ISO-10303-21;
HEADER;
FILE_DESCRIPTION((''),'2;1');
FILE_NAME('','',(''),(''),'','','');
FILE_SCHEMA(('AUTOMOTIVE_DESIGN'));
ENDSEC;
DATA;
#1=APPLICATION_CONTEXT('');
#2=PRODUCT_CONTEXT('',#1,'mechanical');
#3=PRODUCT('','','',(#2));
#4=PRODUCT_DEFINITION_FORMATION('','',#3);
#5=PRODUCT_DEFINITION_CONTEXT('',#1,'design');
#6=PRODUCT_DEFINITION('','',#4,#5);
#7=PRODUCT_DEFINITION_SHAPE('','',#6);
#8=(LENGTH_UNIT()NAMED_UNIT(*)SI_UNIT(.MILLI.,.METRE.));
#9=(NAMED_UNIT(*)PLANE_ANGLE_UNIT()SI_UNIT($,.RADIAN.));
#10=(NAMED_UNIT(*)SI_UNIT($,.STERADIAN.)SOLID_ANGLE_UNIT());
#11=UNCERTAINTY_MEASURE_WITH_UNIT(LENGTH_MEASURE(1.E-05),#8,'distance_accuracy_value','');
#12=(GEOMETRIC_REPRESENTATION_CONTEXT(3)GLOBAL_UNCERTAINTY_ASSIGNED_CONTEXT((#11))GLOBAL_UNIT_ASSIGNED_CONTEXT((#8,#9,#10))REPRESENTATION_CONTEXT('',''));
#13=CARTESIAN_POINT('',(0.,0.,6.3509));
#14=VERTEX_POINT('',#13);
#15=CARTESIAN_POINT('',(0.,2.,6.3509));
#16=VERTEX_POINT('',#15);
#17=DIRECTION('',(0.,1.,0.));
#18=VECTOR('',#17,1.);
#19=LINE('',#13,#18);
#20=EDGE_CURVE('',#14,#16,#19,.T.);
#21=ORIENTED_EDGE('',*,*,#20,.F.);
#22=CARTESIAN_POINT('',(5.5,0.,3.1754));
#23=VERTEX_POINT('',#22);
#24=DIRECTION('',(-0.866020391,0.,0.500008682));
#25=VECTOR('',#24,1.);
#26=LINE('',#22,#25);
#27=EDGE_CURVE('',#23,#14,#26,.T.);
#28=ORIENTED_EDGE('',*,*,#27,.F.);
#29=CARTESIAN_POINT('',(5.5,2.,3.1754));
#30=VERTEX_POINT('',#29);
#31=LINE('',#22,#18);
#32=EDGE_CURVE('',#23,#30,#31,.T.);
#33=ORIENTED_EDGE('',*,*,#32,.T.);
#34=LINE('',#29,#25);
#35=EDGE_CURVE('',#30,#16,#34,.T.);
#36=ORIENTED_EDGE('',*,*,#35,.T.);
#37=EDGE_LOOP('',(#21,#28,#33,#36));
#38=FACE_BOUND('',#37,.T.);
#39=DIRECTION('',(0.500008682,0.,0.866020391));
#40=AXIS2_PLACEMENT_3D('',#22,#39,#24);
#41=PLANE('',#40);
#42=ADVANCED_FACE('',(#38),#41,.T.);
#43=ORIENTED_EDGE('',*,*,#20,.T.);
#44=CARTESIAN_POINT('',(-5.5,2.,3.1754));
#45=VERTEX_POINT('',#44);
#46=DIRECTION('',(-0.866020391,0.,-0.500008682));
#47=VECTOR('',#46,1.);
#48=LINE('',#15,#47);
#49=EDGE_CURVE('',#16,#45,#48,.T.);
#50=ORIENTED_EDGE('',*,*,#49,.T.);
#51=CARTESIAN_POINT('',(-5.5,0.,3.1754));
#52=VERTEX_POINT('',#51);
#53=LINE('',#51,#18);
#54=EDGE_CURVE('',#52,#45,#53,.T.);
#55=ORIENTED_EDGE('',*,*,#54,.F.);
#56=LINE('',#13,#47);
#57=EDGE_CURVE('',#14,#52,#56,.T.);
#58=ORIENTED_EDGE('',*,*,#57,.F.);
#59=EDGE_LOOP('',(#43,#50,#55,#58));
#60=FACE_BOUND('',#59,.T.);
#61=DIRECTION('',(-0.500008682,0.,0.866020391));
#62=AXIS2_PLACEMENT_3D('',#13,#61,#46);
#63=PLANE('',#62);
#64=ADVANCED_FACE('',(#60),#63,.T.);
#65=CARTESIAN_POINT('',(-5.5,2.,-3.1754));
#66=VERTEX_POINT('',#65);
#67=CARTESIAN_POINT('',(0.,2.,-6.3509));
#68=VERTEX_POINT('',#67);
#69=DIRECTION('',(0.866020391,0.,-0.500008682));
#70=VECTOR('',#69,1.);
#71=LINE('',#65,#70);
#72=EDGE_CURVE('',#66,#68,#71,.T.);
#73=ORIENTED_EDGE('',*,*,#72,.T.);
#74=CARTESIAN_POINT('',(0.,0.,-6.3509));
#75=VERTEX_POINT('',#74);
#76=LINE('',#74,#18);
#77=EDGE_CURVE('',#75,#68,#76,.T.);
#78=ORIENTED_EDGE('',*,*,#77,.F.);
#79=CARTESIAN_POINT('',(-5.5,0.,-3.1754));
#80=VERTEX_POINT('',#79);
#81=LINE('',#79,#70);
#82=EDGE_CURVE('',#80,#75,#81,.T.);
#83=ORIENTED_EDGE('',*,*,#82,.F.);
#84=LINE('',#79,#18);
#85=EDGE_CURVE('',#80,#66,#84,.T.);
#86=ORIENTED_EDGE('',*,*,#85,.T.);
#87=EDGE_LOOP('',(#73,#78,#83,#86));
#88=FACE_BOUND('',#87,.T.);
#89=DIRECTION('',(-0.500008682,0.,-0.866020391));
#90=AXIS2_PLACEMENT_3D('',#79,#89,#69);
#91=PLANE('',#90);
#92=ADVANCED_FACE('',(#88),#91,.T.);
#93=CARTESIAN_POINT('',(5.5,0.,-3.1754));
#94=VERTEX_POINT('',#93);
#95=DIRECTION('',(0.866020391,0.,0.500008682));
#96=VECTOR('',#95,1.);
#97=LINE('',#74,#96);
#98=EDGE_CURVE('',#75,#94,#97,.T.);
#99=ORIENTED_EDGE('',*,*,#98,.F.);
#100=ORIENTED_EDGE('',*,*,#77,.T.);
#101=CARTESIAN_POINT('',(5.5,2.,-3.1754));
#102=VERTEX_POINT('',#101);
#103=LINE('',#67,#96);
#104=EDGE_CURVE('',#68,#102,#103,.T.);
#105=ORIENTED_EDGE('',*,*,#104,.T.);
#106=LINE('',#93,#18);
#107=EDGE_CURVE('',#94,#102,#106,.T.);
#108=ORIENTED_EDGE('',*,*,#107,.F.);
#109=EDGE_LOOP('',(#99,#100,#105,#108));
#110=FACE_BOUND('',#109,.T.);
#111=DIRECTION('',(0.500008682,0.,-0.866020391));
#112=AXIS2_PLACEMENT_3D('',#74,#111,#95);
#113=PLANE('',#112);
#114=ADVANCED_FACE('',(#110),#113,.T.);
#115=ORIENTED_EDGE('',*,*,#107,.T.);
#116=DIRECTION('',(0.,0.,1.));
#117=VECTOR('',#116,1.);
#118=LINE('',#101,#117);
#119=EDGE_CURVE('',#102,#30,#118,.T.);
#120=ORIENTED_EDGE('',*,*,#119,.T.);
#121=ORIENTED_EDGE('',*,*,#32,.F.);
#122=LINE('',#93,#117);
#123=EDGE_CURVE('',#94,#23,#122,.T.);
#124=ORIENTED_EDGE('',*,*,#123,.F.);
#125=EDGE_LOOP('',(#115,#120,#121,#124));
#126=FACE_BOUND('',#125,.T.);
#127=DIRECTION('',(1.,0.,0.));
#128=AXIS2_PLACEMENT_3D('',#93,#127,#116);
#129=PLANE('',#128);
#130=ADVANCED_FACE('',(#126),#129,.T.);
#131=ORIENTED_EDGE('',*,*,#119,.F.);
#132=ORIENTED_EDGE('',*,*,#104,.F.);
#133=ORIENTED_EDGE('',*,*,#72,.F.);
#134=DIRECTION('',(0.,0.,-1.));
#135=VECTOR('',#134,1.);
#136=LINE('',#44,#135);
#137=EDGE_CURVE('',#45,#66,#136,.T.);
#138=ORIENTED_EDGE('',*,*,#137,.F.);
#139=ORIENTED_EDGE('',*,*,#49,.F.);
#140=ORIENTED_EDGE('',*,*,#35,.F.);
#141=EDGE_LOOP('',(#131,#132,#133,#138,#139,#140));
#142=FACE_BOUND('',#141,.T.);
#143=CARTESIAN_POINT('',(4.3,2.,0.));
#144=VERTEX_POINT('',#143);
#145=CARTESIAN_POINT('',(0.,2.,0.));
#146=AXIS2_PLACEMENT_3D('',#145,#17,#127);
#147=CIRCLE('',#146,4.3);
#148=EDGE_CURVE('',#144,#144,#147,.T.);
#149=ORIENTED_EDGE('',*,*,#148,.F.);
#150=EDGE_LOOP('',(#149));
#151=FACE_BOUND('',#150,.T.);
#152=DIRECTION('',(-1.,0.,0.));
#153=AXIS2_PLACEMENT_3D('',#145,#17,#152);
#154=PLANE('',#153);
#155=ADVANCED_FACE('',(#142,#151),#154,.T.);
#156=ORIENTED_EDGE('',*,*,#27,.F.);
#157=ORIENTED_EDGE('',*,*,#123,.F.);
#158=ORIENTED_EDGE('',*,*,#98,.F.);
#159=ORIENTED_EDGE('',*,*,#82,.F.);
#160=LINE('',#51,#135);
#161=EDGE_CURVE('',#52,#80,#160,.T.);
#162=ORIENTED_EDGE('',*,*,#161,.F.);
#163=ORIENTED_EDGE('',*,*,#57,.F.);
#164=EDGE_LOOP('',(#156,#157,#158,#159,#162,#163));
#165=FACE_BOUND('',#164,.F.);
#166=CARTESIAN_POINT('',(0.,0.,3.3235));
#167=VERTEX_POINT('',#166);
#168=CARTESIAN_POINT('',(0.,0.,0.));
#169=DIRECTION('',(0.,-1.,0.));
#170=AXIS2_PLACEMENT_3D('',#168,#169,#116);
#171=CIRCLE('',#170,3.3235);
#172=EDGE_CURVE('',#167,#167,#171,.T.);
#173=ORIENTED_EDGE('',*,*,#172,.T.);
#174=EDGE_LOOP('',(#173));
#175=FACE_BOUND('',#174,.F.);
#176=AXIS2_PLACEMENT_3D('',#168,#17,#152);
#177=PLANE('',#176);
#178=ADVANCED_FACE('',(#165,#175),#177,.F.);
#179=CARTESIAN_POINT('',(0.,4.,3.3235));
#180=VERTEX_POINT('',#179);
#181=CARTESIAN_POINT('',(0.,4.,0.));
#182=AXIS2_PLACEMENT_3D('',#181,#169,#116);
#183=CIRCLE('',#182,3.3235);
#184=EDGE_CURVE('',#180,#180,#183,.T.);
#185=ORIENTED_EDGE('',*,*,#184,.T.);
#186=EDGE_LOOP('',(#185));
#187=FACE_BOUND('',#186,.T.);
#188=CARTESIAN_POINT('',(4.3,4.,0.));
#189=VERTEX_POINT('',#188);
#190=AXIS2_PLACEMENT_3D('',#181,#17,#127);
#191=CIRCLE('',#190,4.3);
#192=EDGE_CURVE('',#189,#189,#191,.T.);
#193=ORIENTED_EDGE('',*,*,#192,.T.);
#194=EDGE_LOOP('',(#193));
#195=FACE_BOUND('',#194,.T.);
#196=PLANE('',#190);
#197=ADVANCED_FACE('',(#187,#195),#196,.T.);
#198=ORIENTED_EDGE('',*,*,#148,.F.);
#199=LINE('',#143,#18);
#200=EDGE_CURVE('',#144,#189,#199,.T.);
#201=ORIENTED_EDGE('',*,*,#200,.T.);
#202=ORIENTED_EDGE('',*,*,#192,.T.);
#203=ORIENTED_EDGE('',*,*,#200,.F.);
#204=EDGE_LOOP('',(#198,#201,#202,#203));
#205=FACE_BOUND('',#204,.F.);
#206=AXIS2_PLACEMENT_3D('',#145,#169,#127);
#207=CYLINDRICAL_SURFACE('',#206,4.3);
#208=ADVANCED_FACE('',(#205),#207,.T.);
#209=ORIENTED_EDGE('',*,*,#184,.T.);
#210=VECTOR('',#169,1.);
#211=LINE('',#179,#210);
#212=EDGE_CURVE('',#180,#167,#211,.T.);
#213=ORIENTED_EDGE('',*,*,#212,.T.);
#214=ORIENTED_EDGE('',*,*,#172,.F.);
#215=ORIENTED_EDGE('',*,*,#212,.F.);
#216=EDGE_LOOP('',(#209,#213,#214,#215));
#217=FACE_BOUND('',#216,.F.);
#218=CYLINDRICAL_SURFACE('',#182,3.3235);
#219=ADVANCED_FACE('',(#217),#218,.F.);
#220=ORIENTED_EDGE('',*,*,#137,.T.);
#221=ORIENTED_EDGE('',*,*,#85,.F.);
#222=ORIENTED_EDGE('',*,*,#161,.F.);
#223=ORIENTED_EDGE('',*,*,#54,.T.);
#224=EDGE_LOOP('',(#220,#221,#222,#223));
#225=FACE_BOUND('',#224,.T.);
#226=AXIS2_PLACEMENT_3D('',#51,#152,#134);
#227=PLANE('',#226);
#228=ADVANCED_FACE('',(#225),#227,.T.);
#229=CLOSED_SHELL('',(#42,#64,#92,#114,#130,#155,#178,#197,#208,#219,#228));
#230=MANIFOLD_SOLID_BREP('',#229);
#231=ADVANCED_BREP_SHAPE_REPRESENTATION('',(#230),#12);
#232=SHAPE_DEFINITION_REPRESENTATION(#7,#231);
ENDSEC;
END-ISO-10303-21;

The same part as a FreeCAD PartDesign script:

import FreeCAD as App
import Part
import Sketcher

V = App.Vector
Q = App.Units.Quantity


def add_polygon(sketch, points):
    """Adds a closed chain of lines whose ends are joined by coincident constraints."""
    first, n = sketch.GeometryCount, len(points)
    for a, b in zip(points, points[1:] + points[:1]):
        sketch.addGeometry(Part.LineSegment(App.Vector(*a, 0), App.Vector(*b, 0)), False)
    for i in range(n):
        sketch.addConstraint(Sketcher.Constraint("Coincident", first + i, 2, first + (i + 1) % n, 1))

doc = App.newDocument("Part")
body = doc.addObject("PartDesign::Body", "Body")

sketch1 = body.newObject("Sketcher::SketchObject", "Sketch")
sketch1.AttachmentSupport = (doc.getObject("XZ_Plane"), [""])
sketch1.MapMode = "FlatFace"
add_polygon(sketch1, [(0, 6), (6, 3), (6, -3), (0, -6), (-6, -3), (-6, 3)])
sketch1.addConstraint(Sketcher.Constraint("Vertical", 1))
sketch1.addConstraint(Sketcher.Constraint("Vertical", 4))
sketch1.addConstraint(Sketcher.Constraint("Symmetric", 0, 2, 3, 2, -1, 1))
sketch1.addConstraint(Sketcher.Constraint("Symmetric", 2, 2, 5, 2, -1, 1))
sketch1.addConstraint(Sketcher.Constraint("PointOnObject", 2, 2, -2))
sketch1.addConstraint(Sketcher.Constraint("Parallel", 2, 5))
sketch1.addConstraint(Sketcher.Constraint("Horizontal", 1, 2, 3, 2))
sketch1.addConstraint(Sketcher.Constraint("DistanceX", 3, 2, 1, 2, Q("11 mm")))
sketch1.addConstraint(Sketcher.Constraint("Angle", 0, Q("-30.0006 deg")))
sketch1.addConstraint(Sketcher.Constraint("DistanceY", 1, 2, 1, 1, Q("6.3508 mm")))
pad1 = body.newObject("PartDesign::Pad", "Pad")
pad1.Profile = sketch1
pad1.Length = 2
pad1.Reversed = True

sketch2 = body.newObject("Sketcher::SketchObject", "Sketch001")
sketch2.AttachmentSupport = (doc.getObject("XZ_Plane"), [""])
sketch2.MapMode = "FlatFace"
sketch2.AttachmentOffset = App.Placement(V(0, 0, -2), App.Rotation())
sketch2.addGeometry(Part.Circle(V(0, 0, 0), V(0, 0, 1), 4.3), False)
sketch2.addConstraint(Sketcher.Constraint("Coincident", 0, 3, -1, 1))
sketch2.addConstraint(Sketcher.Constraint("Diameter", 0, Q("8.6 mm")))
pad2 = body.newObject("PartDesign::Pad", "Pad001")
pad2.Profile = sketch2
pad2.Length = 2
pad2.Reversed = True

sketch3 = body.newObject("Sketcher::SketchObject", "Sketch002")
sketch3.AttachmentSupport = (doc.getObject("XZ_Plane"), [""])
sketch3.MapMode = "FlatFace"
sketch3.AttachmentOffset = App.Placement(V(0, 0, -4), App.Rotation())
sketch3.addGeometry(Part.Circle(V(0, 0, 0), V(0, 0, 1), 3.3), False)
sketch3.addConstraint(Sketcher.Constraint("Coincident", 0, 3, -1, 1))
sketch3.addConstraint(Sketcher.Constraint("Diameter", 0, Q("6.647 mm")))
doc.recompute()
hole = body.newObject("PartDesign::Hole", "Hole")
hole.Profile = sketch3
hole.ThreadType = "None"
hole.Diameter = 6.647
hole.DepthType = "ThroughAll"
hole.Reversed = True

doc.recompute()
